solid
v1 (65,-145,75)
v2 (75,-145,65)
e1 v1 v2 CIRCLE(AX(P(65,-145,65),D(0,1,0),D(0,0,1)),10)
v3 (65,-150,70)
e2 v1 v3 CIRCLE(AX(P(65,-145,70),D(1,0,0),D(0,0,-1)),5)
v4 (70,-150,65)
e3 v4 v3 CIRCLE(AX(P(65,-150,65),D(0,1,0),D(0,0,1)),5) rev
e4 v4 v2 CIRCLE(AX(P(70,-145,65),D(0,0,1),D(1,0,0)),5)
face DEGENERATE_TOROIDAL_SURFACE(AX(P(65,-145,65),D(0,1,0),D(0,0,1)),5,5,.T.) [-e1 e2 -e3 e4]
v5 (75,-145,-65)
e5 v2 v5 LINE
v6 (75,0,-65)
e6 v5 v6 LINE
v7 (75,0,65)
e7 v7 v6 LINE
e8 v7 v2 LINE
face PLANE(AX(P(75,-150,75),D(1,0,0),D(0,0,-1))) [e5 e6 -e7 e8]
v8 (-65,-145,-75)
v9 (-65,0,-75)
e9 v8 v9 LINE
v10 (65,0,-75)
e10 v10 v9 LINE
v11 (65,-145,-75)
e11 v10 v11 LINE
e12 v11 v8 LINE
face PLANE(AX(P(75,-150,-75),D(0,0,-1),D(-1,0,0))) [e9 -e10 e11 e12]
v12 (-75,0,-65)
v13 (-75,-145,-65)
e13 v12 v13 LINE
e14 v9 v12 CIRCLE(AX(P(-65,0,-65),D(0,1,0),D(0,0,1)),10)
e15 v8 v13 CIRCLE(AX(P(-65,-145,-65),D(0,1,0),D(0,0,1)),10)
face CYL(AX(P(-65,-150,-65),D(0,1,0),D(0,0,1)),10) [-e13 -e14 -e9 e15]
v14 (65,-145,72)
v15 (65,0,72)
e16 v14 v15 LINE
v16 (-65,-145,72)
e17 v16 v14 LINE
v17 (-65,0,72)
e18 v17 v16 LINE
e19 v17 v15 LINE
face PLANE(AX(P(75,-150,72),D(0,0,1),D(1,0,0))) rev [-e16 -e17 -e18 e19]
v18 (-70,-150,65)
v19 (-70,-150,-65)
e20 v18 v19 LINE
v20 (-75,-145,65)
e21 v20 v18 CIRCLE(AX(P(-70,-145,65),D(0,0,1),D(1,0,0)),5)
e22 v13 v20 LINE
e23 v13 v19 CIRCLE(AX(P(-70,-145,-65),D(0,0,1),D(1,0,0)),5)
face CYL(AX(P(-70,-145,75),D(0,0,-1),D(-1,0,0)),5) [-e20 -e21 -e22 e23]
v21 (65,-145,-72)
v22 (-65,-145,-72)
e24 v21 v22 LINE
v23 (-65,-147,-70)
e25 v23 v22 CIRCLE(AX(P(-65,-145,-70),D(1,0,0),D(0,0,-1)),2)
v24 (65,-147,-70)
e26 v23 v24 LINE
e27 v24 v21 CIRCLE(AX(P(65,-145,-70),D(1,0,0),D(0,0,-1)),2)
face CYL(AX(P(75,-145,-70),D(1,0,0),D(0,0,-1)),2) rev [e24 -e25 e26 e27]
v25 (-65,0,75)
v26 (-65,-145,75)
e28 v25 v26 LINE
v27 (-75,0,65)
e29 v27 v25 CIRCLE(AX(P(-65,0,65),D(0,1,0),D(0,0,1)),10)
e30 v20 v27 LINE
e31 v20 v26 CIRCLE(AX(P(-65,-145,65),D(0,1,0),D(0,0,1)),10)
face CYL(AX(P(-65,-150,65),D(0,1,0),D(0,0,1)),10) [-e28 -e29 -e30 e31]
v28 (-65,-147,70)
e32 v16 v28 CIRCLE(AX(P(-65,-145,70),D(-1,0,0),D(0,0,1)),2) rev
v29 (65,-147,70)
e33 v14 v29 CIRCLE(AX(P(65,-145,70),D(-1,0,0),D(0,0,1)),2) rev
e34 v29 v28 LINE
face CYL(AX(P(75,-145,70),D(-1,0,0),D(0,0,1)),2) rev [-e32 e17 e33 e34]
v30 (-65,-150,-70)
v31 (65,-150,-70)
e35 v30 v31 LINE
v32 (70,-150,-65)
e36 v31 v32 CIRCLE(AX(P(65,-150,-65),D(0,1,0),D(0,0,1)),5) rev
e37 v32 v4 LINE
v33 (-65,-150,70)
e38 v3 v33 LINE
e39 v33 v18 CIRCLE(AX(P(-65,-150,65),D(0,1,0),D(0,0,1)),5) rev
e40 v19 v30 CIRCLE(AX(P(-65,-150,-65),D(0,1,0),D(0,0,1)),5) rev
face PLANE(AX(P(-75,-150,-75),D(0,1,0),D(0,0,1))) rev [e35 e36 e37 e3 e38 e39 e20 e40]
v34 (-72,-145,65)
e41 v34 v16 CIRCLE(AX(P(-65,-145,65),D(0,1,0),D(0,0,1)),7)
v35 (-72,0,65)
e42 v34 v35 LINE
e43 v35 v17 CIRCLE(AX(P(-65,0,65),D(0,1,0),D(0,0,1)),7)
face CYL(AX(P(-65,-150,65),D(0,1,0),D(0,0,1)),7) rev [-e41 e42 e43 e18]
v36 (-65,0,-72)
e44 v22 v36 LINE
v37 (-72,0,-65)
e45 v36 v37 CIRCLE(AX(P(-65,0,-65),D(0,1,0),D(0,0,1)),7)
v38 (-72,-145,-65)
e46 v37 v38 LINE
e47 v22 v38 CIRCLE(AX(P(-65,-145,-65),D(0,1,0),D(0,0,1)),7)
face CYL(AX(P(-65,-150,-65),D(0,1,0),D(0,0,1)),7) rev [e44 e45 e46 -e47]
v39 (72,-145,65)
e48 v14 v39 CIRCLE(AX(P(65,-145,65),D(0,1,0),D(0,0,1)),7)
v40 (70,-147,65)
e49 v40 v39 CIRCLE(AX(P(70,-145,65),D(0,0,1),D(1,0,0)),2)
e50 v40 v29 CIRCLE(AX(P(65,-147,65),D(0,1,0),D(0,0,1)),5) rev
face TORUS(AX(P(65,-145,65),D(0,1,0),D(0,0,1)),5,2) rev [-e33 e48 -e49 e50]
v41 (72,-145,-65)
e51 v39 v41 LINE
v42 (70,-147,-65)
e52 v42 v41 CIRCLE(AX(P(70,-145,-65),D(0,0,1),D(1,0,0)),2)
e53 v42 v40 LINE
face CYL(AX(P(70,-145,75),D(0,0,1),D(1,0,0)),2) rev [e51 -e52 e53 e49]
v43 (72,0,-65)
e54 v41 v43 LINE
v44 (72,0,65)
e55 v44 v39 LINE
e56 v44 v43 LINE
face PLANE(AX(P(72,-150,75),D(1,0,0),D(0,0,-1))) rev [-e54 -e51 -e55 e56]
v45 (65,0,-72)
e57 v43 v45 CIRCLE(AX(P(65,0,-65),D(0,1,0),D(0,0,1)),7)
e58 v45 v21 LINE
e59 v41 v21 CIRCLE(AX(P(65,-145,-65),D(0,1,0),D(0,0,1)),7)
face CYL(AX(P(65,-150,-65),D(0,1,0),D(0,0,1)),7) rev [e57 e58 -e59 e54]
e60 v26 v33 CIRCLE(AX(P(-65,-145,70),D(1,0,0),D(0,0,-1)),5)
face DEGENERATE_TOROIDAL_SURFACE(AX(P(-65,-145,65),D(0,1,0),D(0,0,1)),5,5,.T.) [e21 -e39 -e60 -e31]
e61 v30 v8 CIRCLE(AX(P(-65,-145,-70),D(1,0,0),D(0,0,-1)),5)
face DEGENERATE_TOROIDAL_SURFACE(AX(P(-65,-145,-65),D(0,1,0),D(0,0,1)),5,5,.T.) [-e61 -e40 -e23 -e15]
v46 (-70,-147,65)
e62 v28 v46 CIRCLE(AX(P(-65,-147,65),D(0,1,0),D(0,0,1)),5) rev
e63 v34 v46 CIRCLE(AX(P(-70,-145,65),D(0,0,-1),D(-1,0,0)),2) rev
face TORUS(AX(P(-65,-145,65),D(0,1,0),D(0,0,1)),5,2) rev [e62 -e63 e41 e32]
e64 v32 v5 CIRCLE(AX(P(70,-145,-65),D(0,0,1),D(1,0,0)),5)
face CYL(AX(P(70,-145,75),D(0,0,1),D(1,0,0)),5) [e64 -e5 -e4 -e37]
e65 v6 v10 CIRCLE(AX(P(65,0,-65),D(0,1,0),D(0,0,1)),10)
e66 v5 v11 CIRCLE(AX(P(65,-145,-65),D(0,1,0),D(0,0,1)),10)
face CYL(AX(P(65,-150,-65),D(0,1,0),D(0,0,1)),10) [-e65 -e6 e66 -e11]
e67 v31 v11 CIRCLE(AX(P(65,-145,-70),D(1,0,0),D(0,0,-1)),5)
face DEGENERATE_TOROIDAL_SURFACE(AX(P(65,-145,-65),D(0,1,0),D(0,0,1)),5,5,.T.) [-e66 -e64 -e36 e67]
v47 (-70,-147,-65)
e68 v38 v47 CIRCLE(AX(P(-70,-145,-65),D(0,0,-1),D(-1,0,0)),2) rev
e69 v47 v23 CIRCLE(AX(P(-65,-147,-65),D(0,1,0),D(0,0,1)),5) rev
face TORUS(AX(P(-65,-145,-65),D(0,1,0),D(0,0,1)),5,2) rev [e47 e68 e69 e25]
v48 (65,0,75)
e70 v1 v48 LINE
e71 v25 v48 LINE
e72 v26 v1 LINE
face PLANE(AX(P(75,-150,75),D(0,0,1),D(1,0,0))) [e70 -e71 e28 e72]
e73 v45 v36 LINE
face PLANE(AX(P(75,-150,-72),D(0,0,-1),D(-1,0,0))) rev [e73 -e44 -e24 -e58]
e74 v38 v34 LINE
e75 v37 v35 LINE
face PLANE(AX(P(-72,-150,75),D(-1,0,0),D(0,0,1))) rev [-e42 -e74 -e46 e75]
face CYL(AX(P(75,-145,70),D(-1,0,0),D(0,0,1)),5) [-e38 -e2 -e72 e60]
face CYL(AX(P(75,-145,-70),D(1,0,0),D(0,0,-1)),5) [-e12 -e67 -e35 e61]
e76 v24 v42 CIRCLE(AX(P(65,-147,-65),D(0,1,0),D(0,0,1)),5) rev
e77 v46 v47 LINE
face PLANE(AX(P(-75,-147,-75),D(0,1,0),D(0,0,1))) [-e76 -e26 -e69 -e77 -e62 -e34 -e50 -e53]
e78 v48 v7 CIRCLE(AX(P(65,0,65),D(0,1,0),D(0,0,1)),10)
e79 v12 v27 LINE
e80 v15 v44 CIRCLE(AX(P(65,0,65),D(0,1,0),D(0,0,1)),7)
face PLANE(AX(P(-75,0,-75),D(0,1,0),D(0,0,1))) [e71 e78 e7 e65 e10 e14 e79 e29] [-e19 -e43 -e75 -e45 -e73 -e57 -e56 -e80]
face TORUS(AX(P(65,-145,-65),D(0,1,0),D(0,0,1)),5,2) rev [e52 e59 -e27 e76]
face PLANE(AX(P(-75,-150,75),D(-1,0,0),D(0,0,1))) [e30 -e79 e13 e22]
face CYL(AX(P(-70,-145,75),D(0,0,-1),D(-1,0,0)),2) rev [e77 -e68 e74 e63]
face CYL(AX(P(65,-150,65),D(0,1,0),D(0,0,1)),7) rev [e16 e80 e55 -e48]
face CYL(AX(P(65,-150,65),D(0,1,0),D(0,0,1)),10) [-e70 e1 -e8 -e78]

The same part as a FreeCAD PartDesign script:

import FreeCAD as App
import Part
import Sketcher
Q = App.Units.Quantity


def edges_at(feature, points):
    """Names of the edges that pass closest to the given points."""
    edges = feature.Shape.Edges
    near = lambda p: min(range(len(edges)), key=lambda i: edges[i].distToShape(Part.Vertex(*p))[0])
    return sorted({f"Edge{near(p) + 1}" for p in points})


def faces_at(feature, points):
    """Names of the faces that lie closest to the given points."""
    faces = feature.Shape.Faces
    near = lambda p: min(range(len(faces)), key=lambda i: faces[i].distToShape(Part.Vertex(*p))[0])
    return sorted({f"Face{near(p) + 1}" for p in points})

doc = App.newDocument("Part")
body = doc.addObject("PartDesign::Body", "Body")

# Sketch on XZ plane
sketch1 = body.newObject("Sketcher::SketchObject", "Sketch")
sketch1.AttachmentSupport = (doc.getObject("XZ_Plane"), [""])
sketch1.MapMode = "FlatFace"
sketch1.addGeometry([
    Part.LineSegment(App.Vector(-75, -75, 0), App.Vector(-75, 75, 0)),
    Part.LineSegment(App.Vector(-75, 75, 0), App.Vector(75, 75, 0)),
    Part.LineSegment(App.Vector(75, 75, 0), App.Vector(75, -75, 0)),
    Part.LineSegment(App.Vector(75, -75, 0), App.Vector(-75, -75, 0)),
], False)
sketch1.addConstraint([
    Sketcher.Constraint("Coincident", 0, 2, 1, 1),
    Sketcher.Constraint("Coincident", 1, 2, 2, 1),
    Sketcher.Constraint("Coincident", 2, 2, 3, 1),
    Sketcher.Constraint("Coincident", 3, 2, 0, 1),
    Sketcher.Constraint("Vertical", 0),
    Sketcher.Constraint("Horizontal", 1),
    Sketcher.Constraint("Vertical", 2),
    Sketcher.Constraint("Horizontal", 3),
    Sketcher.Constraint("Symmetric", 0, 2, 2, 2, -1, 1),
    Sketcher.Constraint("Equal", 3, 0),
    Sketcher.Constraint("DistanceX", 1, 1, 1, 2, Q("150 mm")),
])
pad1 = body.newObject("PartDesign::Pad", "Pad")
pad1.Profile = sketch1
pad1.Length = 150
doc.recompute()

fillet = body.newObject("PartDesign::Fillet", "Fillet")
fillet.Base = (pad1, edges_at(pad1, [
    (-75, -75, -75),
    (75, -75, -75),
    (75, -75, 75),
    (-75, -75, 75),
]))
fillet.Radius = 10
doc.recompute()

fillet2 = body.newObject("PartDesign::Fillet", "Fillet001")
fillet2.Base = (fillet, edges_at(fillet, [
    (-75, -150, 0),
    (0, -150, 75),
    (0, -150, -75),
    (75, -150, 0),
    (72.071, -150, -72.071),
    (72.071, -150, 72.071),
    (-72.071, -150, -72.071),
    (-72.071, -150, 72.071),
]))
fillet2.Radius = 5
doc.recompute()

thickness = body.newObject("PartDesign::Thickness", "Thickness")
thickness.Base = (fillet2, faces_at(fillet2, [(0, 0, 0)]))
thickness.Value = 3
thickness.Reversed = True
thickness.Join = "Intersection"

doc.recompute()
